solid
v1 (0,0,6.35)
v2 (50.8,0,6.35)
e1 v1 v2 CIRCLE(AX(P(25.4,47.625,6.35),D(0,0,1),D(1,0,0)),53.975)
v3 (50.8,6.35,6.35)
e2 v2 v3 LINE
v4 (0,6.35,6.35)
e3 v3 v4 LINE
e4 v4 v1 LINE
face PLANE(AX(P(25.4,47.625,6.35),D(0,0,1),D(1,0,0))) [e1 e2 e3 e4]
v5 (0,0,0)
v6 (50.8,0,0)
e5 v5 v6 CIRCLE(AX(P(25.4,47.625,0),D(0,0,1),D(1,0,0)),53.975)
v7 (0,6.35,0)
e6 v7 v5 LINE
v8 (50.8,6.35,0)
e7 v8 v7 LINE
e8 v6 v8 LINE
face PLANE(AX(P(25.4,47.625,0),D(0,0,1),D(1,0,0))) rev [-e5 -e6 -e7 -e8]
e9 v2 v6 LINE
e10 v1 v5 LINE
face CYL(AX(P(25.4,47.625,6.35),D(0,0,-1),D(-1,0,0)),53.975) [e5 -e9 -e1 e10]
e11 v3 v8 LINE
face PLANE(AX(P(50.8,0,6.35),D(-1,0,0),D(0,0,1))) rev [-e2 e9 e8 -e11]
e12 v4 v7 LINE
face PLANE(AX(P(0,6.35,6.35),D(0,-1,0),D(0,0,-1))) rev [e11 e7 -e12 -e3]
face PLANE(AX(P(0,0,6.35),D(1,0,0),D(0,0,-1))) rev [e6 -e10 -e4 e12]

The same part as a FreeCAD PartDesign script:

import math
import FreeCAD as App
import Part
import Sketcher
Q = App.Units.Quantity

doc = App.newDocument("Part")
params = doc.addObject("Spreadsheet::Sheet", "Params")
for row, (alias, value) in enumerate([
    ("sketch1_width", "2 in"),
    ("sketch1_radius", "2.125 in"),
    ("sketch1_height", "0.25 in"),
    ("pad1_length", "0.25 in"),
], start=1):
    params.set(f"A{row}", alias)
    params.set(f"B{row}", "=" + value)
    params.setAlias(f"B{row}", alias)

body = doc.addObject("PartDesign::Body", "Body")

sketch1 = body.newObject("Sketcher::SketchObject", "Sketch")
sketch1.AttachmentSupport = (doc.getObject("XY_Plane"), [""])
sketch1.MapMode = "FlatFace"
sketch1.addGeometry([
    Part.LineSegment(App.Vector(0, 6.35, 0), App.Vector(0, 0, 0)),
    Part.ArcOfCircle(Part.Circle(App.Vector(25.4, 47.625, 0), App.Vector(0, 0, 1), 53.975), math.radians(-118.072487), math.radians(-61.927513)),
    Part.LineSegment(App.Vector(50.8, 0, 0), App.Vector(50.8, 6.35, 0)),
    Part.LineSegment(App.Vector(50.8, 6.35, 0), App.Vector(0, 6.35, 0)),
], False)
sketch1.addConstraint([
    Sketcher.Constraint("Coincident", 0, 2, 1, 1),
    Sketcher.Constraint("Coincident", 1, 2, 2, 1),
    Sketcher.Constraint("Coincident", 2, 2, 3, 1),
    Sketcher.Constraint("Coincident", 3, 2, 0, 1),
    Sketcher.Constraint("Vertical", 0),
    Sketcher.Constraint("Vertical", 2),
    Sketcher.Constraint("Horizontal", 3),
    Sketcher.Constraint("Coincident", 0, 2, -1, 1),
    Sketcher.Constraint("PointOnObject", 1, 2, -1),
    Sketcher.Constraint("DistanceX", 3, 2, 3, 1, Q("2 in")),
    Sketcher.Constraint("Radius", 1, Q("2.125 in")),
    Sketcher.Constraint("DistanceY", 0, 2, 0, 1, Q("0.25 in")),
])
sketch1.setExpression("Constraints[9]", "Params.sketch1_width")
sketch1.setExpression("Constraints[10]", "Params.sketch1_radius")
sketch1.setExpression("Constraints[11]", "Params.sketch1_height")
pad1 = body.newObject("PartDesign::Pad", "Pad")
pad1.Profile = sketch1
pad1.setExpression("Length", "Params.pad1_length")

doc.recompute()
